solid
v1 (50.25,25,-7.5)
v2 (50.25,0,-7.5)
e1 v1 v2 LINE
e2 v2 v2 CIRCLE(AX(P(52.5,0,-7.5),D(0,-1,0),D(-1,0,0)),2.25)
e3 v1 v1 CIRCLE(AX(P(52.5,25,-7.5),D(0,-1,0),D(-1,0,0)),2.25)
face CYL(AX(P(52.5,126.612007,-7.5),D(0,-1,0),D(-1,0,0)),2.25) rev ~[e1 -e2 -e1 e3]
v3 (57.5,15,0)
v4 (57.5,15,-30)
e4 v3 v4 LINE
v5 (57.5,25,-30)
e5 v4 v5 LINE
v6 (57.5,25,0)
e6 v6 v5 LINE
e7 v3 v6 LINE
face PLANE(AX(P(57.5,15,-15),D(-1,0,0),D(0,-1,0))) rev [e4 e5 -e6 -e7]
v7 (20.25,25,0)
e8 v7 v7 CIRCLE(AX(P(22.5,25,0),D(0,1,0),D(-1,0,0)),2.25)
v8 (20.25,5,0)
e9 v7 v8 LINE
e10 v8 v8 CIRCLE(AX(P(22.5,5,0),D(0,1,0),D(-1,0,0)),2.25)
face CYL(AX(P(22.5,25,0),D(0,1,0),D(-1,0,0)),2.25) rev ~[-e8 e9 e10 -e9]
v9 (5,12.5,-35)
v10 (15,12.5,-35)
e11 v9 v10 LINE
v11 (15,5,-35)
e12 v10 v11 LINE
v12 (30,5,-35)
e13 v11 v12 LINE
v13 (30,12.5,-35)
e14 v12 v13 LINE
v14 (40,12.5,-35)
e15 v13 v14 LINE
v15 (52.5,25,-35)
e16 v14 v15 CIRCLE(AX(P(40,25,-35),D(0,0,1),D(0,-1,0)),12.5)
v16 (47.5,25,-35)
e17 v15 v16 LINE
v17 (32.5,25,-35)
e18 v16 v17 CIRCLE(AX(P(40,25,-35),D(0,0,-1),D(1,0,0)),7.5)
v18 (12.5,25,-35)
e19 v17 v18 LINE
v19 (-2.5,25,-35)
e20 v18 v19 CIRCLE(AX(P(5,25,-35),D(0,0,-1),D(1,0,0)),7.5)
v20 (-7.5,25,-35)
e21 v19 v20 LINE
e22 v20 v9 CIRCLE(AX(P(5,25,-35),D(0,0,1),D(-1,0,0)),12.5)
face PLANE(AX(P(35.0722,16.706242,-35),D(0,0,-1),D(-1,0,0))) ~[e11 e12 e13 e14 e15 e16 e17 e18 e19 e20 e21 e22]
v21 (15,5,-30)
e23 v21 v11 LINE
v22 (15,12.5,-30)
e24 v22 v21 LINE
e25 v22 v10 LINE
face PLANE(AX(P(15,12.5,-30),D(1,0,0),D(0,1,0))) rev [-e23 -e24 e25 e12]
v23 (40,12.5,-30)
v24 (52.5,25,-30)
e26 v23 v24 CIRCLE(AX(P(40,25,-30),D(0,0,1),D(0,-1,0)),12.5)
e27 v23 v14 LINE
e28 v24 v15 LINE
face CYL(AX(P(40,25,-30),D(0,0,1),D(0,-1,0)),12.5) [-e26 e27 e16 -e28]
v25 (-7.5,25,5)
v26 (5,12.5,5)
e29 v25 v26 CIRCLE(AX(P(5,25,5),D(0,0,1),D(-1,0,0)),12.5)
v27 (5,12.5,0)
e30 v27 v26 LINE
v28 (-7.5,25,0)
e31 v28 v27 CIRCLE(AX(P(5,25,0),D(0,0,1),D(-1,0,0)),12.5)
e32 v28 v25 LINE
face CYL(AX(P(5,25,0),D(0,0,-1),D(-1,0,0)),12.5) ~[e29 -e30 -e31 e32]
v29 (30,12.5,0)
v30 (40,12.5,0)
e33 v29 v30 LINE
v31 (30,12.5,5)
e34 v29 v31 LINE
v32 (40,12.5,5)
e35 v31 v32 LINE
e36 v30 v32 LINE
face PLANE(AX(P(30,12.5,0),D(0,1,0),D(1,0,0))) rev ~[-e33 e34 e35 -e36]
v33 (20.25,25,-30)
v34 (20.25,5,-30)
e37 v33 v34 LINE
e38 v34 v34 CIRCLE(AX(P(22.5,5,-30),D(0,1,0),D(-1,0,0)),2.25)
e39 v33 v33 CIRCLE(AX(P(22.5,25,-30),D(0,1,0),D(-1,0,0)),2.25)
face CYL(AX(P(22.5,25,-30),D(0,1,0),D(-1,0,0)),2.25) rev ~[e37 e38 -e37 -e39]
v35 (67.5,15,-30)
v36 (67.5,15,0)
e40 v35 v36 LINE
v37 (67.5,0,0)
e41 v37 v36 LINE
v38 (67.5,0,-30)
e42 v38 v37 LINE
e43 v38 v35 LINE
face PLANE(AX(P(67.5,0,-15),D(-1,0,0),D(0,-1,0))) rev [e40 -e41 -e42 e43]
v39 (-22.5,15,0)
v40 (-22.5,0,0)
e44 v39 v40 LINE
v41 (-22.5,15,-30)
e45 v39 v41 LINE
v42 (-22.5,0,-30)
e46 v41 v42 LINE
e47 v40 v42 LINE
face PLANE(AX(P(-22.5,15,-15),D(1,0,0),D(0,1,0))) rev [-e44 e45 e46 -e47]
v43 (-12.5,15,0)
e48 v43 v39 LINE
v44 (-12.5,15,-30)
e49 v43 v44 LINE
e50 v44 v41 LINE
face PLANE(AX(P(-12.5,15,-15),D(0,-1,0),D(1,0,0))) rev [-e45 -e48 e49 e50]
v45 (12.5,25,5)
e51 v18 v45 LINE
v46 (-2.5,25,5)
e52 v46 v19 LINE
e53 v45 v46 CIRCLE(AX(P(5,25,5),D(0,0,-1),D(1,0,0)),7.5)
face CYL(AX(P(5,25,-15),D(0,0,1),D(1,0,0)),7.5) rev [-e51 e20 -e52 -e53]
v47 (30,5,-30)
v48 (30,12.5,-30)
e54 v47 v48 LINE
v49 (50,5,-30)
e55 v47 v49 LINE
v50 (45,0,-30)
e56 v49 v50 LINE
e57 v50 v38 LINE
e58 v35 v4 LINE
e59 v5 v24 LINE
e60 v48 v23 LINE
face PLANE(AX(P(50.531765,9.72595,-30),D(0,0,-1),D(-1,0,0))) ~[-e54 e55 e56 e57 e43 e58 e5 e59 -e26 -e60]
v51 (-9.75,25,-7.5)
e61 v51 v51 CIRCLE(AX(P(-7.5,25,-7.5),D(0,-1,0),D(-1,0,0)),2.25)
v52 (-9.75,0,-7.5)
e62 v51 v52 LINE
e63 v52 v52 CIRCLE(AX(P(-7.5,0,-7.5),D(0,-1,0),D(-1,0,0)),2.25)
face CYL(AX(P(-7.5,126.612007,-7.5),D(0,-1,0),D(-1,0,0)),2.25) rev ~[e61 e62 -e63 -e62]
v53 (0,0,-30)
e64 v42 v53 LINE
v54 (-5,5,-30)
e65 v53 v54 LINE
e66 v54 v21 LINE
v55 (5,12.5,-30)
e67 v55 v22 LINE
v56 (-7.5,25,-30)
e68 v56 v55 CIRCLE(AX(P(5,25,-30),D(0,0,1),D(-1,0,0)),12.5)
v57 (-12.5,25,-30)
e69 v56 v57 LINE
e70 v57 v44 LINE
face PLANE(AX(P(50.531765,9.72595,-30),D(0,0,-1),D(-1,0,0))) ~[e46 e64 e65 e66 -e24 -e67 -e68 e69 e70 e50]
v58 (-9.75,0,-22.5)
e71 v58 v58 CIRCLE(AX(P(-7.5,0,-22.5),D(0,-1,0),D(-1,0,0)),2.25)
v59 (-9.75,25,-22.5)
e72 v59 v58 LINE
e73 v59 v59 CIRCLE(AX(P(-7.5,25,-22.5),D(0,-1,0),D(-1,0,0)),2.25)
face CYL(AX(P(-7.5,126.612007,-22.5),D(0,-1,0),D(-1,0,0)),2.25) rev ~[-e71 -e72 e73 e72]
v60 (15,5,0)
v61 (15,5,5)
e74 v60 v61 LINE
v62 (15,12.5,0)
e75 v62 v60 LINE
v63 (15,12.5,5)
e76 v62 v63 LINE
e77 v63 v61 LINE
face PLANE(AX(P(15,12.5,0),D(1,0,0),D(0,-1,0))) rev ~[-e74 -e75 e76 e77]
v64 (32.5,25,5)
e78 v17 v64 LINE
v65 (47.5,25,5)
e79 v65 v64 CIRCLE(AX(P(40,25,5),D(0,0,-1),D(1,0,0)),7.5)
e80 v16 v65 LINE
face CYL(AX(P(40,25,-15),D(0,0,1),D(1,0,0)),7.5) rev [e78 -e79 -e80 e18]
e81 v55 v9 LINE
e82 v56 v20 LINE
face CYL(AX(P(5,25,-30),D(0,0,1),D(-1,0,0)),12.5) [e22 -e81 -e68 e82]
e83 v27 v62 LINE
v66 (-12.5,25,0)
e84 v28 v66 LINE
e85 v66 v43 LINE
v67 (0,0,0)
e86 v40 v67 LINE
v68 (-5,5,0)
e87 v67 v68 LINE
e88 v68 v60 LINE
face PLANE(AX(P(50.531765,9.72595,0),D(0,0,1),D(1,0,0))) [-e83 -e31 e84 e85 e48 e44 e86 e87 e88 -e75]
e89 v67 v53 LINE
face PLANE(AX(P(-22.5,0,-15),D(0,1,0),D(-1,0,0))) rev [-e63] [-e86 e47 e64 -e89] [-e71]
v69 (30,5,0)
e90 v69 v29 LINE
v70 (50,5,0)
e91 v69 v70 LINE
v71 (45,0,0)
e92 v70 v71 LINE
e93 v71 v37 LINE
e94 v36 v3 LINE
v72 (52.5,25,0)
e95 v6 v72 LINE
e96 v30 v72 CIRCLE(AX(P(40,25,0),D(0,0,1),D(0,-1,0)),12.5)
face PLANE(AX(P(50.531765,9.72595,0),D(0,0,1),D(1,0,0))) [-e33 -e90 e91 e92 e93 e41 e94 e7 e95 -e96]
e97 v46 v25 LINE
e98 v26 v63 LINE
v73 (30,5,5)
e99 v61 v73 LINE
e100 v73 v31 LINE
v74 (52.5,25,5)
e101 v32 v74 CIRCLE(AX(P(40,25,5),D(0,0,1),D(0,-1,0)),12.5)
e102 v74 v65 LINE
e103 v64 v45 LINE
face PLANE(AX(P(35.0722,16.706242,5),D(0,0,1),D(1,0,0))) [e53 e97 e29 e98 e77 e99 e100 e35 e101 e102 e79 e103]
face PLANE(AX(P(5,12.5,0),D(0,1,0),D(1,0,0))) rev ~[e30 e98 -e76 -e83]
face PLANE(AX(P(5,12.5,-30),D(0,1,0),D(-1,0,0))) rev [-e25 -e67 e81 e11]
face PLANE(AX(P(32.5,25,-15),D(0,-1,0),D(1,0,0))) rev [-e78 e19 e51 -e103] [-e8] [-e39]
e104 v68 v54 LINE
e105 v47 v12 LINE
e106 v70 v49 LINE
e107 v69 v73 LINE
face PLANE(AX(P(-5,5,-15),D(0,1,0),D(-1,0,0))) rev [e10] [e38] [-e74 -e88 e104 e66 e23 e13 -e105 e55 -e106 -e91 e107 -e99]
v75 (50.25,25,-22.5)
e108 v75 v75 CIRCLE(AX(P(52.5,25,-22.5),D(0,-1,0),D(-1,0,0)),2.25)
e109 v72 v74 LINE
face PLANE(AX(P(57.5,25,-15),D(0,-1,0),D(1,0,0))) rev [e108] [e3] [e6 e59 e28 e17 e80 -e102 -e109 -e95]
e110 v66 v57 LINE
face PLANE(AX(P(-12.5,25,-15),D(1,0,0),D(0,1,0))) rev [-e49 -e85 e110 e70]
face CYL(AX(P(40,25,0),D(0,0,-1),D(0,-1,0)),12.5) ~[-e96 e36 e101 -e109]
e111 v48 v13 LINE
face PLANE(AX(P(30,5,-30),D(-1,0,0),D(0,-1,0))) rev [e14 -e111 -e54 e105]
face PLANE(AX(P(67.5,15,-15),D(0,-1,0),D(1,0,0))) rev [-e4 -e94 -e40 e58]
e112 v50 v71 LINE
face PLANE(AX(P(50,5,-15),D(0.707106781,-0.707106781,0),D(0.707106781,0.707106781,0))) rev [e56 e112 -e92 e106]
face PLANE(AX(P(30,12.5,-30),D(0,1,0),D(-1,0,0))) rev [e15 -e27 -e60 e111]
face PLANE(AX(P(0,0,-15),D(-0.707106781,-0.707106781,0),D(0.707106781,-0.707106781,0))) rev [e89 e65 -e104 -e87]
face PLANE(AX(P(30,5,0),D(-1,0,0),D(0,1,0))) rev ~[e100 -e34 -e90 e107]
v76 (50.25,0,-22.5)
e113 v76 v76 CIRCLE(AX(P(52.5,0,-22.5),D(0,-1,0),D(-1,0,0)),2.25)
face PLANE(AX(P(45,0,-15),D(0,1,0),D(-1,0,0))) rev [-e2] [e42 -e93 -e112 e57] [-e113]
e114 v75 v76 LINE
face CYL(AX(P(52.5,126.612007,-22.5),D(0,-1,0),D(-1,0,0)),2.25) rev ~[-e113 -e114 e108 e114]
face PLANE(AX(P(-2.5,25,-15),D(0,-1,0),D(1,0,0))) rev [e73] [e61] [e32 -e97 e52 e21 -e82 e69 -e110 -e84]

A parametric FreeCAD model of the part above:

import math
import FreeCAD as App
import Part
import Sketcher
from FreeCAD import Vector
Q = App.Units.Quantity

doc = App.newDocument("Part")
params = doc.addObject("Spreadsheet::Sheet", "Params")
for row, (alias, value) in enumerate([
    ("sketch1_radius", "12.5 mm"),
    ("sketch1_radius2", "7.5 mm"),
    ("sketch1_width", "10 mm"),
    ("sketch1_width2", "20 mm"),
    ("sketch1_height", "7.5 mm"),
    ("pad1_length", "5 mm"),
    ("sketch2_radius", "7.5 mm"),
    ("sketch2_width", "10 mm"),
    ("sketch2_width2", "20 mm"),
    ("sketch2_width3", "55 mm"),
    ("sketch2_height", "15 mm"),
    ("pad2_length", "15 mm"),
    ("sketch3_diameter", "4.5 mm"),
    ("hole_diameter", "4.5 mm"),
    ("sketch4_diameter", "4.5 mm"),
], start=1):
    params.set(f"A{row}", alias)
    params.set(f"B{row}", "=" + value)
    params.setAlias(f"B{row}", alias)

body = doc.addObject("PartDesign::Body", "Body")

# Sketch on XY plane
sketch1 = doc.addObject("Sketcher::SketchObject", "Sketch")
body.addObject(sketch1)
sketch1.AttachmentSupport = (doc.XY_Plane, [""])
sketch1.MapMode = "FlatFace"
sketch1.addGeometry([
    Part.LineSegment(Vector(30, 5, 0), Vector(30, 12, 0)),  # 0
    Part.LineSegment(Vector(30, 12, 0), Vector(40, 12, 0)),  # 1
    Part.ArcOfCircle(Part.Circle(Vector(40, 25, 0), Vector(0, 0, 1), 12), math.radians(-90), math.radians(0)),  # 2
    Part.LineSegment(Vector(52, 25, 0), Vector(48, 25, 0)),  # 3
    Part.ArcOfCircle(Part.Circle(Vector(40, 25, 0), Vector(0, 0, 1), 8), math.radians(180), math.radians(360)),  # 4
    Part.LineSegment(Vector(32, 25, 0), Vector(12, 25, 0)),  # 5
    Part.ArcOfCircle(Part.Circle(Vector(5, 25, 0), Vector(0, 0, 1), 8), math.radians(180), math.radians(360)),  # 6
    Part.LineSegment(Vector(-2, 25, 0), Vector(-8, 25, 0)),  # 7
    Part.ArcOfCircle(Part.Circle(Vector(5, 25, 0), Vector(0, 0, 1), 12), math.radians(180), math.radians(270)),  # 8
    Part.LineSegment(Vector(5, 12, 0), Vector(15, 12, 0)),  # 9
    Part.LineSegment(Vector(15, 12, 0), Vector(15, 5, 0)),  # 10
    Part.LineSegment(Vector(15, 5, 0), Vector(30, 5, 0)),  # 11
], False)
sketch1.addConstraint([
    Sketcher.Constraint("Coincident", 0, 2, 1, 1),
    Sketcher.Constraint("Tangent", 1, 2, 2, 1),
    Sketcher.Constraint("Coincident", 2, 2, 3, 1),
    Sketcher.Constraint("Coincident", 3, 2, 4, 2),
    Sketcher.Constraint("Coincident", 4, 1, 5, 1),
    Sketcher.Constraint("Coincident", 5, 2, 6, 2),
    Sketcher.Constraint("Coincident", 6, 1, 7, 1),
    Sketcher.Constraint("Coincident", 7, 2, 8, 1),
    Sketcher.Constraint("Tangent", 8, 2, 9, 1),
    Sketcher.Constraint("Coincident", 9, 2, 10, 1),
    Sketcher.Constraint("Coincident", 10, 2, 11, 1),
    Sketcher.Constraint("Coincident", 11, 2, 0, 1),
    Sketcher.Constraint("Vertical", 0),
    Sketcher.Constraint("Horizontal", 1),
    Sketcher.Constraint("Horizontal", 3),
    Sketcher.Constraint("Horizontal", 5),
    Sketcher.Constraint("Horizontal", 7),
    Sketcher.Constraint("Horizontal", 9),
    Sketcher.Constraint("Vertical", 10),
    Sketcher.Constraint("Horizontal", 11),
    Sketcher.Constraint("Coincident", 4, 3, 2, 3),
    Sketcher.Constraint("Coincident", 8, 3, 6, 3),
    Sketcher.Constraint("Equal", 4, 6),
    Sketcher.Constraint("Equal", 2, 8),
    Sketcher.Constraint("Horizontal", 4, 3, 6, 3),
    Sketcher.Constraint("Horizontal", 8, 3, 2, 2),
    Sketcher.Constraint("Horizontal", 3, 2, 4, 1),
    Sketcher.Constraint("Horizontal", 5, 2, 6, 1),
    Sketcher.Constraint("Equal", 1, 9),
    Sketcher.Constraint("Radius", 2, Q("12.5 mm")),
    Sketcher.Constraint("Radius", 4, Q("7.5 mm")),
    Sketcher.Constraint("DistanceX", 1, 1, 1, 2, Q("10 mm")),
    Sketcher.Constraint("DistanceX", 5, 2, 5, 1, Q("20 mm")),
    Sketcher.Constraint("DistanceY", 0, 1, 0, 2, Q("7.5 mm")),
    Sketcher.Constraint("DistanceX", -1, 1, 2, 3, Q("40 mm")),
    Sketcher.Constraint("DistanceY", -1, 1, 2, 3, Q("25 mm")),
])
sketch1.setExpression("Constraints[29]", "Params.sketch1_radius")
sketch1.setExpression("Constraints[30]", "Params.sketch1_radius2")
sketch1.setExpression("Constraints[31]", "Params.sketch1_width")
sketch1.setExpression("Constraints[32]", "Params.sketch1_width2")
sketch1.setExpression("Constraints[33]", "Params.sketch1_height")
pad1 = doc.addObject("PartDesign::Pad", "Pad")
body.addObject(pad1)
pad1.Profile = sketch1
pad1.setExpression("Length", "Params.pad1_length")

# Sketch on XY plane
sketch2 = doc.addObject("Sketcher::SketchObject", "Sketch001")
body.addObject(sketch2)
sketch2.AttachmentSupport = (doc.XY_Plane, [""])
sketch2.MapMode = "FlatFace"
sketch2.AttachmentOffset = App.Placement(Vector(0, 0, -15), App.Rotation())
sketch2.addGeometry([
    Part.LineSegment(Vector(50, 5, 0), Vector(45, 0, 0)),  # 0
    Part.LineSegment(Vector(45, 0, 0), Vector(68, 0, 0)),  # 1
    Part.LineSegment(Vector(68, 0, 0), Vector(68, 15, 0)),  # 2
    Part.LineSegment(Vector(68, 15, 0), Vector(58, 15, 0)),  # 3
    Part.LineSegment(Vector(58, 15, 0), Vector(58, 25, 0)),  # 4
    Part.LineSegment(Vector(58, 25, 0), Vector(48, 25, 0)),  # 5
    Part.ArcOfCircle(Part.Circle(Vector(40, 25, 0), Vector(0, 0, 1), 8), math.radians(180), math.radians(360)),  # 6
    Part.LineSegment(Vector(32, 25, 0), Vector(12, 25, 0)),  # 7
    Part.ArcOfCircle(Part.Circle(Vector(5, 25, 0), Vector(0, 0, 1), 8), math.radians(180), math.radians(360)),  # 8
    Part.LineSegment(Vector(-2, 25, 0), Vector(-12, 25, 0)),  # 9
    Part.LineSegment(Vector(-12, 25, 0), Vector(-12, 15, 0)),  # 10
    Part.LineSegment(Vector(-12, 15, 0), Vector(-22, 15, 0)),  # 11
    Part.LineSegment(Vector(-22, 15, 0), Vector(-22, 0, 0)),  # 12
    Part.LineSegment(Vector(-22, 0, 0), Vector(0, 0, 0)),  # 13
    Part.LineSegment(Vector(0, 0, 0), Vector(-5, 5, 0)),  # 14
    Part.LineSegment(Vector(-5, 5, 0), Vector(50, 5, 0)),  # 15
], False)
sketch2.addConstraint([
    Sketcher.Constraint("Coincident", 0, 2, 1, 1),
    Sketcher.Constraint("Coincident", 1, 2, 2, 1),
    Sketcher.Constraint("Coincident", 2, 2, 3, 1),
    Sketcher.Constraint("Coincident", 3, 2, 4, 1),
    Sketcher.Constraint("Coincident", 4, 2, 5, 1),
    Sketcher.Constraint("Coincident", 5, 2, 6, 2),
    Sketcher.Constraint("Coincident", 6, 1, 7, 1),
    Sketcher.Constraint("Coincident", 7, 2, 8, 2),
    Sketcher.Constraint("Coincident", 8, 1, 9, 1),
    Sketcher.Constraint("Coincident", 9, 2, 10, 1),
    Sketcher.Constraint("Coincident", 10, 2, 11, 1),
    Sketcher.Constraint("Coincident", 11, 2, 12, 1),
    Sketcher.Constraint("Coincident", 12, 2, 13, 1),
    Sketcher.Constraint("Coincident", 13, 2, 14, 1),
    Sketcher.Constraint("Coincident", 14, 2, 15, 1),
    Sketcher.Constraint("Coincident", 15, 2, 0, 1),
    Sketcher.Constraint("Horizontal", 1),
    Sketcher.Constraint("Vertical", 2),
    Sketcher.Constraint("Horizontal", 3),
    Sketcher.Constraint("Vertical", 4),
    Sketcher.Constraint("Horizontal", 5),
    Sketcher.Constraint("Horizontal", 7),
    Sketcher.Constraint("Horizontal", 9),
    Sketcher.Constraint("Vertical", 10),
    Sketcher.Constraint("Horizontal", 11),
    Sketcher.Constraint("Vertical", 12),
    Sketcher.Constraint("Horizontal", 13),
    Sketcher.Constraint("Horizontal", 15),
    Sketcher.Constraint("Coincident", 13, 2, -1, 1),
    Sketcher.Constraint("Equal", 6, 8),
    Sketcher.Constraint("Symmetric", 7, 2, 9, 2, -2),
    Sketcher.Constraint("PointOnObject", 0, 2, -1),
    Sketcher.Constraint("Perpendicular", 0, 14),
    Sketcher.Constraint("Horizontal", 6, 3, 8, 3),
    Sketcher.Constraint("Horizontal", 8, 3, 4, 2),
    Sketcher.Constraint("Horizontal", 5, 2, 6, 1),
    Sketcher.Constraint("Horizontal", 3, 2, 10, 2),
    Sketcher.Constraint("Equal", 3, 5),
    Sketcher.Constraint("Equal", 5, 9),
    Sketcher.Constraint("Equal", 9, 11),
    Sketcher.Constraint("Equal", 1, 13),
    Sketcher.Constraint("Equal", 11, 4),
    Sketcher.Constraint("Equal", 0, 14),
    Sketcher.Constraint("Radius", 6, Q("7.5 mm")),
    Sketcher.Constraint("DistanceX", 3, 2, 3, 1, Q("10 mm")),
    Sketcher.Constraint("DistanceX", 7, 2, 7, 1, Q("20 mm")),
    Sketcher.Constraint("DistanceX", 15, 1, 15, 2, Q("55 mm")),
    Sketcher.Constraint("DistanceY", 2, 1, 2, 2, Q("15 mm")),
])
sketch2.setExpression("Constraints[43]", "Params.sketch2_radius")
sketch2.setExpression("Constraints[44]", "Params.sketch2_width")
sketch2.setExpression("Constraints[45]", "Params.sketch2_width2")
sketch2.setExpression("Constraints[46]", "Params.sketch2_width3")
sketch2.setExpression("Constraints[47]", "Params.sketch2_height")
pad2 = doc.addObject("PartDesign::Pad", "Pad001")
body.addObject(pad2)
pad2.Profile = sketch2
pad2.setExpression("Length", "Params.pad2_length")
body2 = doc.addObject("PartDesign::Body", "Body001")
doc.recompute()

body2.BaseFeature = body
doc.recompute()

mirroring = doc.addObject("Part::Mirroring", "Mirroring")
mirroring.Source = body
mirroring.Base = Vector(0, 0, -15)
mirroring.Normal = Vector(0, 0, -1)
body3 = doc.addObject("PartDesign::Body", "Body002")
body3.BaseFeature = mirroring
boolean = doc.addObject("PartDesign::Boolean", "Boolean")
body2.addObject(boolean)
boolean.Type = "Fuse"
boolean.addObjects([body3])
doc.recompute()

# Sketch on XZ plane
sketch3 = doc.addObject("Sketcher::SketchObject", "Sketch002")
body2.addObject(sketch3)
sketch3.AttachmentSupport = (doc.getObject("XZ_Plane001"), [""])
sketch3.MapMode = "FlatFace"
sketch3.AttachmentOffset = App.Placement(Vector(0, 0, -25), App.Rotation())
sketch3.addGeometry([
    Part.Circle(Vector(-7.5, -7.5, 0), Vector(0, 0, 1), 2.2),
    Part.Circle(Vector(52.5, -22.5, 0), Vector(0, 0, 1), 2.2),
    Part.Circle(Vector(52.5, -7.5, 0), Vector(0, 0, 1), 2.2),
    Part.Circle(Vector(-7.5, -22.5, 0), Vector(0, 0, 1), 2.2),
], False)
sketch3.addConstraint([
    Sketcher.Constraint("Equal", 0, 1),
    Sketcher.Constraint("Equal", 1, 2),
    Sketcher.Constraint("Equal", 2, 3),
    Sketcher.Constraint("Horizontal", 0, 3, 2, 3),
    Sketcher.Constraint("Horizontal", 1, 3, 3, 3),
    Sketcher.Constraint("Vertical", 1, 3, 2, 3),
    Sketcher.Constraint("Vertical", 0, 3, 3, 3),
    Sketcher.Constraint("Diameter", 0, Q("4.5 mm")),
    Sketcher.Constraint("DistanceX", 0, 3, 1, 3, Q("60 mm")),
    Sketcher.Constraint("DistanceY", 1, 3, 0, 3, Q("15 mm")),
    Sketcher.Constraint("DistanceX", 0, 3, -1, 1, Q("7.5 mm")),
    Sketcher.Constraint("DistanceY", 0, 3, -1, 1, Q("7.5 mm")),
])
sketch3.setExpression("Constraints[7]", "Params.sketch3_diameter")
doc.recompute()
hole = doc.addObject("PartDesign::Hole", "Hole")
body2.addObject(hole)
hole.Profile = sketch3
hole.ThreadType = "None"
hole.setExpression("Diameter", "Params.hole_diameter")
hole.DepthType = "ThroughAll"
hole.Reversed = True

# Sketch on XZ plane
sketch4 = doc.addObject("Sketcher::SketchObject", "Sketch003")
body2.addObject(sketch4)
sketch4.AttachmentSupport = (doc.getObject("XZ_Plane001"), [""])
sketch4.MapMode = "FlatFace"
sketch4.AttachmentOffset = App.Placement(Vector(0, 0, -25), App.Rotation())
sketch4.addGeometry([
    Part.Circle(Vector(22.5, -30, 0), Vector(0, 0, 1), 2.2),
    Part.Circle(Vector(22.5, 0, 0), Vector(0, 0, 1), 2.2),
], False)
sketch4.addConstraint([
    Sketcher.Constraint("Equal", 0, 1),
    Sketcher.Constraint("PointOnObject", 1, 3, -1),
    Sketcher.Constraint("Vertical", 0, 3, 1, 3),
    Sketcher.Constraint("Diameter", 0, Q("4.5 mm")),
    Sketcher.Constraint("DistanceY", 0, 3, -1, 1, Q("30 mm")),
    Sketcher.Constraint("DistanceX", -1, 1, 0, 3, Q("22.5 mm")),
])
sketch4.setExpression("Constraints[3]", "Params.sketch4_diameter")
pocket1 = doc.addObject("PartDesign::Pocket", "Pocket")
body2.addObject(pocket1)
pocket1.Profile = sketch4
pocket1.Type = "ThroughAll"
pocket1.Reversed = True
mirroring.Visibility = False

doc.recompute()
